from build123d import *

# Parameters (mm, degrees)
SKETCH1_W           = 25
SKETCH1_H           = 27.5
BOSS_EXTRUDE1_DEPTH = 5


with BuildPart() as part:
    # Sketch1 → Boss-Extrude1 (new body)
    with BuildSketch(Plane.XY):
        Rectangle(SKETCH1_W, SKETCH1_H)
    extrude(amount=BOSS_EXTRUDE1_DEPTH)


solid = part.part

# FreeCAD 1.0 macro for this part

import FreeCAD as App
import Part
import Sketcher
Q = App.Units.Quantity


def add_polygon(sketch, points):
    """Adds a closed chain of lines whose ends are joined by coincident constraints."""
    first, n = sketch.GeometryCount, len(points)
    for a, b in zip(points, points[1:] + points[:1]):
        sketch.addGeometry(Part.LineSegment(App.Vector(*a, 0), App.Vector(*b, 0)), False)
    for i in range(n):
        sketch.addConstraint(Sketcher.Constraint("Coincident", first + i, 2, first + (i + 1) % n, 1))

doc = App.newDocument("Part")
params = doc.addObject("Spreadsheet::Sheet", "Params")
for row, (alias, value) in enumerate([
    ("sketch1_width", "25 mm"),
    ("sketch1_height", "27.5 mm"),
    ("pad1_length", "5 mm"),
], start=1):
    params.set(f"A{row}", alias)
    params.set(f"B{row}", "=" + value)
    params.setAlias(f"B{row}", alias)

body = doc.addObject("PartDesign::Body", "Body")

sketch1 = doc.addObject("Sketcher::SketchObject", "Sketch")
body.addObject(sketch1)
sketch1.AttachmentSupport = (doc.XY_Plane, [""])
sketch1.MapMode = "FlatFace"
add_polygon(sketch1, [(-12.5, 13.75), (-12.5, -13.75), (12.5, -13.75), (12.5, 13.75)])
sketch1.addConstraint([
    Sketcher.Constraint("Vertical", 0),
    Sketcher.Constraint("Horizontal", 1),
    Sketcher.Constraint("Vertical", 2),
    Sketcher.Constraint("Horizontal", 3),
    Sketcher.Constraint("Symmetric", 0, 2, 2, 2, -1, 1),
    Sketcher.Constraint("DistanceX", 1, 1, 1, 2, Q("25 mm")),
    Sketcher.Constraint("DistanceY", 0, 2, 0, 1, Q("27.5 mm")),
])
sketch1.setExpression("Constraints[9]", "Params.sketch1_width")
sketch1.setExpression("Constraints[10]", "Params.sketch1_height")
pad1 = doc.addObject("PartDesign::Pad", "Pad")
body.addObject(pad1)
pad1.Profile = sketch1
pad1.setExpression("Length", "Params.pad1_length")

doc.recompute()
